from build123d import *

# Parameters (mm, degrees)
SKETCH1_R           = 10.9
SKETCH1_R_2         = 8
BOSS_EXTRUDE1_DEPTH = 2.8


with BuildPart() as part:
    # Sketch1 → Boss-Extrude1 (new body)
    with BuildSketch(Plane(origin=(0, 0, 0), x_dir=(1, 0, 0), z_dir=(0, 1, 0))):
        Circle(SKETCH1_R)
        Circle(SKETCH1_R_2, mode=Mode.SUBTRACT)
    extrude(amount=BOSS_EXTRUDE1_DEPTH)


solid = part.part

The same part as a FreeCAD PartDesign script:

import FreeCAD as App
import Part
import Sketcher
from FreeCAD import Vector

doc = App.newDocument("Part")
body = doc.addObject("PartDesign::Body", "Body")

sketch1 = body.newObject("Sketcher::SketchObject", "Sketch")
sketch1.AttachmentSupport = (doc.getObject("XZ_Plane"), [""])
sketch1.MapMode = "FlatFace"
sketch1.addGeometry([
    Part.Circle(Vector(0, 0, 0), Vector(0, 0, 1), 11),
    Part.Circle(Vector(0, 0, 0), Vector(0, 0, 1), 8),
], False)
sketch1.addConstraint([
    Sketcher.Constraint("Coincident", 0, 3, -1, 1),
    Sketcher.Constraint("Coincident", 1, 3, -1, 1),
    Sketcher.Constraint("Diameter", 1, 16.0),
    Sketcher.Constraint("Diameter", 0, 21.8),
])
pad1 = body.newObject("PartDesign::Pad", "Pad")
pad1.Profile = sketch1
pad1.Length = 2.8
pad1.Reversed = True

doc.recompute()
